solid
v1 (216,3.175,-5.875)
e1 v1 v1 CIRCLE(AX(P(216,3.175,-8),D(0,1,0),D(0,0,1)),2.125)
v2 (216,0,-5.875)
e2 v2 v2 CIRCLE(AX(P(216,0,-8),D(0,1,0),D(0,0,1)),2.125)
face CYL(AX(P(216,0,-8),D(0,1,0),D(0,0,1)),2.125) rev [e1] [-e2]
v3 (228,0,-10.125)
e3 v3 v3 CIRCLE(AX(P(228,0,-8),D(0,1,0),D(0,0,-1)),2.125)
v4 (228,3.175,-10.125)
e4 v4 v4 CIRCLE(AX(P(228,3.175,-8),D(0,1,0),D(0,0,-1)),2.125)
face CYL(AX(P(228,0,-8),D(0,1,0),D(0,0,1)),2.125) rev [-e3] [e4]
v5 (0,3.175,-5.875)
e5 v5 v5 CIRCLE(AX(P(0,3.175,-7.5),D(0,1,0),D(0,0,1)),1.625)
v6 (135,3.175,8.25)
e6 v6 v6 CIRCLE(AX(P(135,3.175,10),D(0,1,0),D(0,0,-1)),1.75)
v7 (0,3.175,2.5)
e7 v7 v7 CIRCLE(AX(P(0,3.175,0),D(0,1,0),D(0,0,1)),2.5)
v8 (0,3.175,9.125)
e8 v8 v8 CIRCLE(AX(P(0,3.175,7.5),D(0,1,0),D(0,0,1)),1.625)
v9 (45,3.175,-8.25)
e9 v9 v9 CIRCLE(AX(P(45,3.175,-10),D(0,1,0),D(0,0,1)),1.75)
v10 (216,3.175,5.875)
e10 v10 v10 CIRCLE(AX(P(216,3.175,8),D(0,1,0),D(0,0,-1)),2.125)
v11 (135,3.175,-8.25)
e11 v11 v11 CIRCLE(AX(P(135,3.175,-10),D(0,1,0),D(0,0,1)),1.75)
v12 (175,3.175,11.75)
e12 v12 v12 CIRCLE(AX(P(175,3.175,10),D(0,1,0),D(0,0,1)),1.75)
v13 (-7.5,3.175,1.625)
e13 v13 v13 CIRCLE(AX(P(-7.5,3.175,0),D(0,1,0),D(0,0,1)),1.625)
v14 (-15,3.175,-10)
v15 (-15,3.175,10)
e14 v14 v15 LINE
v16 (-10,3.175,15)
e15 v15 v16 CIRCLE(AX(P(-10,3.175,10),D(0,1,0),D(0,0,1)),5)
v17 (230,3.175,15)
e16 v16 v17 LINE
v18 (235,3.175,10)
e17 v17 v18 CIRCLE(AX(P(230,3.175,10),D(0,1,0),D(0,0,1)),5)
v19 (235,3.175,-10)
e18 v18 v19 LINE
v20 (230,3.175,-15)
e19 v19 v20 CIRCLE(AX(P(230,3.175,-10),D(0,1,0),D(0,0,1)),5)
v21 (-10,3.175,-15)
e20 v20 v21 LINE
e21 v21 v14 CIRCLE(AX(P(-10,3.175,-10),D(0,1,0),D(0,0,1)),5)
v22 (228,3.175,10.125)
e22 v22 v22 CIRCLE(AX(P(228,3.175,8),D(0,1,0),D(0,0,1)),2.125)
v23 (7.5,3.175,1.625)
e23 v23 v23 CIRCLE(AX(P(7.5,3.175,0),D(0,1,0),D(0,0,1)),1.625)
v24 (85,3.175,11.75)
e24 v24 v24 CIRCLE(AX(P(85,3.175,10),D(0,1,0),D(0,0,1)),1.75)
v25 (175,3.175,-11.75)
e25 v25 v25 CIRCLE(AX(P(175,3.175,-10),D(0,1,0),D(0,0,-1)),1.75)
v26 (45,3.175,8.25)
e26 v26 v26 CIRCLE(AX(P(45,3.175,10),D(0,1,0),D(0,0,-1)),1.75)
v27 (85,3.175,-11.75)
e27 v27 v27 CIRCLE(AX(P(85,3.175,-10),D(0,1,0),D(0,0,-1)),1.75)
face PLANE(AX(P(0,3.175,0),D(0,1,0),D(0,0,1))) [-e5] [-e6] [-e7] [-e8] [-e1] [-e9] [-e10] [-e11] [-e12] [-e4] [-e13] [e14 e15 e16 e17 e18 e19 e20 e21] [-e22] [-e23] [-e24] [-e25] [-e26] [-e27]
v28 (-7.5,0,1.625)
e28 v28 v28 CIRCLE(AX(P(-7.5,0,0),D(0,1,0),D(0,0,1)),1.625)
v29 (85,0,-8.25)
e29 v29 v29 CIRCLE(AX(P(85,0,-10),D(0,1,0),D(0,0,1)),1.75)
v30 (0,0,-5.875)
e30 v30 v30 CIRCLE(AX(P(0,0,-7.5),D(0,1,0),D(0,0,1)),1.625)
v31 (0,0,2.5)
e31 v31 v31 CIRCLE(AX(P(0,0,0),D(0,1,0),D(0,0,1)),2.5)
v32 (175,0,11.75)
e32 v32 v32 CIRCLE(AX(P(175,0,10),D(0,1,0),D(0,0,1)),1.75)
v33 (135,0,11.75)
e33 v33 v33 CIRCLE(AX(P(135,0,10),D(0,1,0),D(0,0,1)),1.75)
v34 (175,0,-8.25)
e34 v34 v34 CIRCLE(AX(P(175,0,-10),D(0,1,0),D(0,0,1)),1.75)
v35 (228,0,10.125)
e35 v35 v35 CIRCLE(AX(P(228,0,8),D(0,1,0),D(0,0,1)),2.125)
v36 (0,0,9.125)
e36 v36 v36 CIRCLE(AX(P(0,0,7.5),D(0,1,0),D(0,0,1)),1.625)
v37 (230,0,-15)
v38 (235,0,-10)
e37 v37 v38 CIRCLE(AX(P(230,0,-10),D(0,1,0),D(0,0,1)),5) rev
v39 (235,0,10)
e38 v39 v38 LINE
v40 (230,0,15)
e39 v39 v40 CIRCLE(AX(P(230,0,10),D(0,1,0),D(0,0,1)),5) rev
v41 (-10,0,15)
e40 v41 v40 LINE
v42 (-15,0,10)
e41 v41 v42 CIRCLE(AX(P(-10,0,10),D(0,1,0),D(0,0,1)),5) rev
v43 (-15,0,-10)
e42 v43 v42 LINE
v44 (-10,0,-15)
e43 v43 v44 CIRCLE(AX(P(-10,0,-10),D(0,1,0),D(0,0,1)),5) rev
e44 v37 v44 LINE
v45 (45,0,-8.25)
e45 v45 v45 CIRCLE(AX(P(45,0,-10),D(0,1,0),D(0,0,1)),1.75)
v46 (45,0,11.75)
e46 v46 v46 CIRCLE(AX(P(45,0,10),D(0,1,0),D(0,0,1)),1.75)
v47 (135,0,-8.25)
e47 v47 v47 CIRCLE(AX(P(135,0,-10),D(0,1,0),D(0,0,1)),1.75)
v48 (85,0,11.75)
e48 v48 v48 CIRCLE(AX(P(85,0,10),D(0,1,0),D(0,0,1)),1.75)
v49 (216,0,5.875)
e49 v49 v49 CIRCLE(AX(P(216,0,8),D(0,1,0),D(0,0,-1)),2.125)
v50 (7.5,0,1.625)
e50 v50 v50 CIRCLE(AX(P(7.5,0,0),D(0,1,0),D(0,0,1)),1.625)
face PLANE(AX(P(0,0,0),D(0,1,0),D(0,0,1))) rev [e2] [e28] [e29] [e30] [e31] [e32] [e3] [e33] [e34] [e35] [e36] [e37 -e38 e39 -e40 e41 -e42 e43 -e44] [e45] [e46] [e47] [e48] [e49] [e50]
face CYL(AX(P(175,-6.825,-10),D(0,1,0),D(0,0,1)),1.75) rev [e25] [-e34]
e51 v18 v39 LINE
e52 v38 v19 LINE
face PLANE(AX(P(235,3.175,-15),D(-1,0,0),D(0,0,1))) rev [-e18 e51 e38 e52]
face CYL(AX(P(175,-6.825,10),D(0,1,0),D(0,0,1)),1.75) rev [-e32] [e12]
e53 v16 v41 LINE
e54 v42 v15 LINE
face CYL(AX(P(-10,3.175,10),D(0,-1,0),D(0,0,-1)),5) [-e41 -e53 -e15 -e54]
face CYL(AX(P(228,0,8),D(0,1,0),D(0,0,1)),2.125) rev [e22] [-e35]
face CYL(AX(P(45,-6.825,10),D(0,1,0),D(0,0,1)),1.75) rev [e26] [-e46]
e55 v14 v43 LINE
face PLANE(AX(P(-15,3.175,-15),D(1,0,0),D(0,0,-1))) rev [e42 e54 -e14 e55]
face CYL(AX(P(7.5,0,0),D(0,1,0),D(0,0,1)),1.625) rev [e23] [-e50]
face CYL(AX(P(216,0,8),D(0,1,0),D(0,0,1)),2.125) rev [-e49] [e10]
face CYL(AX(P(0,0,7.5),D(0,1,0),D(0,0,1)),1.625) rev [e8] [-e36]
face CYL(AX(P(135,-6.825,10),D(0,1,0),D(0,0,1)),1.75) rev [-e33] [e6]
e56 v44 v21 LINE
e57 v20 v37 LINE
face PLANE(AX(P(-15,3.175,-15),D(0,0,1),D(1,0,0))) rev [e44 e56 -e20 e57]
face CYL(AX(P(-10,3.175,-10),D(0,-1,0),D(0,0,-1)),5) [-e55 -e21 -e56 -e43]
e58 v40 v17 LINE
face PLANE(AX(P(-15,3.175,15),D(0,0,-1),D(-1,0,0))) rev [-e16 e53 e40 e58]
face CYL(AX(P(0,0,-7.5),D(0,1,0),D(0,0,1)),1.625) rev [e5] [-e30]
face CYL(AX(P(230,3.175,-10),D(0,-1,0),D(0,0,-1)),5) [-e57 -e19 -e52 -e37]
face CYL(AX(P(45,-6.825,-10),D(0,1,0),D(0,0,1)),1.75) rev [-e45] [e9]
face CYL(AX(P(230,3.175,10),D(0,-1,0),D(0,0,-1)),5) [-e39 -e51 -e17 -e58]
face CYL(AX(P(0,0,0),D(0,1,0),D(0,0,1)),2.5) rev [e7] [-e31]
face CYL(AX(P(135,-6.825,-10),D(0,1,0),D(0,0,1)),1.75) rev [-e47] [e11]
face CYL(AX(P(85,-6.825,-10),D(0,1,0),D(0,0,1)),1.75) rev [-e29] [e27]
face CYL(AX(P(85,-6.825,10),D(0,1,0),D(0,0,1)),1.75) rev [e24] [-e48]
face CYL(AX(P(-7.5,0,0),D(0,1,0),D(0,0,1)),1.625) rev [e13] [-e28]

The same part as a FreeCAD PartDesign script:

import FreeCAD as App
import Part
import Sketcher
from FreeCAD import Vector
Q = App.Units.Quantity


def edges_at(feature, points):
    """Names of the edges that pass closest to the given points."""
    edges = feature.Shape.Edges
    near = lambda p: min(range(len(edges)), key=lambda i: edges[i].distToShape(Part.Vertex(*p))[0])
    return sorted({f"Edge{near(p) + 1}" for p in points})

doc = App.newDocument("Part")
params = doc.addObject("Spreadsheet::Sheet", "Params")
for row, (alias, value) in enumerate([
    ("sketch1_width", "250 mm"),
    ("sketch1_height", "30 mm"),
    ("pad1_length", "3.175 mm"),
    ("fillet_radius", "5 mm"),
    ("sketch2_diameter", "5 mm"),
    ("sketch3_diameter", "3.25 mm"),
    ("sketch4_diameter", "3.5 mm"),
    ("pocket3_length", "10 mm"),
    ("sketch5_diameter", "4.25 mm"),
], start=1):
    params.set(f"A{row}", alias)
    params.set(f"B{row}", "=" + value)
    params.setAlias(f"B{row}", alias)

body = doc.addObject("PartDesign::Body", "Body")

# Sketch on XZ plane
sketch1 = body.newObject("Sketcher::SketchObject", "Sketch")
sketch1.AttachmentSupport = (doc.getObject("XZ_Plane"), [""])
sketch1.MapMode = "FlatFace"
sketch1.addGeometry(Part.LineSegment(Vector(-15, -15, 0), Vector(-15, 15, 0)), False)
sketch1.addGeometry(Part.LineSegment(Vector(-15, 15, 0), Vector(235, 15, 0)), False)
sketch1.addGeometry(Part.LineSegment(Vector(235, 15, 0), Vector(235, -15, 0)), False)
sketch1.addGeometry(Part.LineSegment(Vector(235, -15, 0), Vector(-15, -15, 0)), False)
sketch1.addConstraint(Sketcher.Constraint("Coincident", 0, 2, 1, 1))
sketch1.addConstraint(Sketcher.Constraint("Coincident", 1, 2, 2, 1))
sketch1.addConstraint(Sketcher.Constraint("Coincident", 2, 2, 3, 1))
sketch1.addConstraint(Sketcher.Constraint("Coincident", 3, 2, 0, 1))
sketch1.addConstraint(Sketcher.Constraint("Vertical", 0))
sketch1.addConstraint(Sketcher.Constraint("Horizontal", 1))
sketch1.addConstraint(Sketcher.Constraint("Vertical", 2))
sketch1.addConstraint(Sketcher.Constraint("Horizontal", 3))
sketch1.addConstraint(Sketcher.Constraint("DistanceX", 1, 1, 1, 2, Q("250 mm")))
sketch1.addConstraint(Sketcher.Constraint("DistanceY", 0, 1, 0, 2, Q("30 mm")))
sketch1.addConstraint(Sketcher.Constraint("DistanceX", 0, 2, -1, 1, Q("15 mm")))
sketch1.addConstraint(Sketcher.Constraint("DistanceY", -1, 1, 0, 2, Q("15 mm")))
sketch1.setExpression("Constraints[8]", "Params.sketch1_width")
sketch1.setExpression("Constraints[9]", "Params.sketch1_height")
pad1 = body.newObject("PartDesign::Pad", "Pad")
pad1.Profile = sketch1
pad1.setExpression("Length", "Params.pad1_length")
pad1.Reversed = True
doc.recompute()

fillet = body.newObject("PartDesign::Fillet", "Fillet")
fillet.Base = (pad1, edges_at(pad1, [
    (-15, 1.587, -15),
    (235, 1.587, -15),
    (235, 1.587, 15),
    (-15, 1.587, 15),
]))
fillet.setExpression("Radius", "Params.fillet_radius")

# Sketch on XZ plane
sketch2 = body.newObject("Sketcher::SketchObject", "Sketch001")
sketch2.AttachmentSupport = (doc.getObject("XZ_Plane"), [""])
sketch2.MapMode = "FlatFace"
sketch2.AttachmentOffset = App.Placement(Vector(0, 0, -3.175), App.Rotation())
sketch2.addGeometry(Part.Circle(Vector(0, 0, 0), Vector(0, 0, 1), 2.5), False)
sketch2.addConstraint(Sketcher.Constraint("Coincident", 0, 3, -1, 1))
sketch2.addConstraint(Sketcher.Constraint("Diameter", 0, Q("5 mm")))
sketch2.setExpression("Constraints[1]", "Params.sketch2_diameter")
pocket1 = body.newObject("PartDesign::Pocket", "Pocket")
pocket1.Profile = sketch2
pocket1.Type = "ThroughAll"
pocket1.Reversed = True

# Sketch on XZ plane
sketch3 = body.newObject("Sketcher::SketchObject", "Sketch002")
sketch3.AttachmentSupport = (doc.getObject("XZ_Plane"), [""])
sketch3.MapMode = "FlatFace"
sketch3.AttachmentOffset = App.Placement(Vector(0, 0, -3.175), App.Rotation())
sketch3.addGeometry(Part.Circle(Vector(7.5, 0, 0), Vector(0, 0, 1), 1.6), False)
sketch3.addGeometry(Part.Circle(Vector(0, 7.5, 0), Vector(0, 0, 1), 1.6), False)
sketch3.addGeometry(Part.Circle(Vector(-7.5, 0, 0), Vector(0, 0, 1), 1.6), False)
sketch3.addGeometry(Part.Circle(Vector(0, -7.5, 0), Vector(0, 0, 1), 1.6), False)
sketch3.addConstraint(Sketcher.Constraint("Equal", 0, 1))
sketch3.addConstraint(Sketcher.Constraint("Equal", 1, 2))
sketch3.addConstraint(Sketcher.Constraint("Equal", 2, 3))
sketch3.addConstraint(Sketcher.Constraint("Symmetric", 0, 3, 2, 3, -1, 1))
sketch3.addConstraint(Sketcher.Constraint("Symmetric", 1, 3, 3, 3, -1, 1))
sketch3.addConstraint(Sketcher.Constraint("PointOnObject", 0, 3, -1))
sketch3.addConstraint(Sketcher.Constraint("PointOnObject", 1, 3, -2))
sketch3.addConstraint(Sketcher.Constraint("Diameter", 0, Q("3.25 mm")))
sketch3.addConstraint(Sketcher.Constraint("DistanceX", 2, 3, 0, 3, Q("15 mm")))
sketch3.addConstraint(Sketcher.Constraint("DistanceY", 3, 3, 1, 3, Q("15 mm")))
sketch3.setExpression("Constraints[7]", "Params.sketch3_diameter")
pocket2 = body.newObject("PartDesign::Pocket", "Pocket001")
pocket2.Profile = sketch3
pocket2.Type = "ThroughAll"
pocket2.Reversed = True

# Sketch on XZ plane
sketch4 = body.newObject("Sketcher::SketchObject", "Sketch003")
sketch4.AttachmentSupport = (doc.getObject("XZ_Plane"), [""])
sketch4.MapMode = "FlatFace"
sketch4.AttachmentOffset = App.Placement(Vector(0, 0, -3.175), App.Rotation())
sketch4.addGeometry(Part.Circle(Vector(85, 10, 0), Vector(0, 0, 1), 1.8), False)
sketch4.addGeometry(Part.Circle(Vector(135, 10, 0), Vector(0, 0, 1), 1.8), False)
sketch4.addGeometry(Part.Circle(Vector(135, -10, 0), Vector(0, 0, 1), 1.8), False)
sketch4.addGeometry(Part.Circle(Vector(85, -10, 0), Vector(0, 0, 1), 1.8), False)
sketch4.addGeometry(Part.Circle(Vector(175, 10, 0), Vector(0, 0, 1), 1.8), False)
sketch4.addGeometry(Part.Circle(Vector(175, -10, 0), Vector(0, 0, 1), 1.8), False)
sketch4.addGeometry(Part.Circle(Vector(45, 10, 0), Vector(0, 0, 1), 1.8), False)
sketch4.addGeometry(Part.Circle(Vector(45, -10, 0), Vector(0, 0, 1), 1.8), False)
sketch4.addConstraint(Sketcher.Constraint("Equal", 0, 1))
sketch4.addConstraint(Sketcher.Constraint("Equal", 1, 2))
sketch4.addConstraint(Sketcher.Constraint("Equal", 2, 3))
sketch4.addConstraint(Sketcher.Constraint("Equal", 3, 4))
sketch4.addConstraint(Sketcher.Constraint("Equal", 4, 5))
sketch4.addConstraint(Sketcher.Constraint("Equal", 5, 6))
sketch4.addConstraint(Sketcher.Constraint("Equal", 6, 7))
sketch4.addConstraint(Sketcher.Constraint("Symmetric", 1, 3, 2, 3, -1))
sketch4.addConstraint(Sketcher.Constraint("Symmetric", 0, 3, 3, 3, -1))
sketch4.addConstraint(Sketcher.Constraint("Symmetric", 4, 3, 5, 3, -1))
sketch4.addConstraint(Sketcher.Constraint("Symmetric", 6, 3, 7, 3, -1))
sketch4.addConstraint(Sketcher.Constraint("Horizontal", 0, 3, 1, 3))
sketch4.addConstraint(Sketcher.Constraint("Horizontal", 1, 3, 4, 3))
sketch4.addConstraint(Sketcher.Constraint("Horizontal", 4, 3, 6, 3))
sketch4.addConstraint(Sketcher.Constraint("Diameter", 0, Q("3.5 mm")))
sketch4.addConstraint(Sketcher.Constraint("DistanceX", -1, 1, 0, 3, Q("85 mm")))
sketch4.addConstraint(Sketcher.Constraint("DistanceY", -1, 1, 0, 3, Q("10 mm")))
sketch4.addConstraint(Sketcher.Constraint("DistanceX", -1, 1, 1, 3, Q("135 mm")))
sketch4.addConstraint(Sketcher.Constraint("DistanceX", -1, 1, 4, 3, Q("175 mm")))
sketch4.addConstraint(Sketcher.Constraint("DistanceX", -1, 1, 6, 3, Q("45 mm")))
sketch4.setExpression("Constraints[14]", "Params.sketch4_diameter")
pocket3 = body.newObject("PartDesign::Pocket", "Pocket002")
pocket3.Profile = sketch4
pocket3.setExpression("Length", "Params.pocket3_length")
pocket3.Reversed = True

# Sketch on XZ plane
sketch5 = body.newObject("Sketcher::SketchObject", "Sketch004")
sketch5.AttachmentSupport = (doc.getObject("XZ_Plane"), [""])
sketch5.MapMode = "FlatFace"
sketch5.AttachmentOffset = App.Placement(Vector(0, 0, -3.175), App.Rotation())
sketch5.addGeometry(Part.Circle(Vector(216, -8, 0), Vector(0, 0, 1), 2.1), False)
sketch5.addGeometry(Part.Circle(Vector(228, -8, 0), Vector(0, 0, 1), 2.1), False)
sketch5.addGeometry(Part.Circle(Vector(228, 8, 0), Vector(0, 0, 1), 2.1), False)
sketch5.addGeometry(Part.Circle(Vector(216, 8, 0), Vector(0, 0, 1), 2.1), False)
sketch5.addConstraint(Sketcher.Constraint("Equal", 0, 1))
sketch5.addConstraint(Sketcher.Constraint("Equal", 1, 2))
sketch5.addConstraint(Sketcher.Constraint("Equal", 2, 3))
sketch5.addConstraint(Sketcher.Constraint("Symmetric", 1, 3, 2, 3, -1))
sketch5.addConstraint(Sketcher.Constraint("Symmetric", 0, 3, 3, 3, -1))
sketch5.addConstraint(Sketcher.Constraint("Horizontal", 0, 3, 1, 3))
sketch5.addConstraint(Sketcher.Constraint("Diameter", 0, Q("4.25 mm")))
sketch5.addConstraint(Sketcher.Constraint("DistanceX", -1, 1, 0, 3, Q("216 mm")))
sketch5.addConstraint(Sketcher.Constraint("DistanceY", 0, 3, -1, 1, Q("8 mm")))
sketch5.addConstraint(Sketcher.Constraint("DistanceX", -1, 1, 1, 3, Q("228 mm")))
sketch5.setExpression("Constraints[6]", "Params.sketch5_diameter")
pocket4 = body.newObject("PartDesign::Pocket", "Pocket003")
pocket4.Profile = sketch5
pocket4.Type = "ThroughAll"
pocket4.Reversed = True

doc.recompute()
